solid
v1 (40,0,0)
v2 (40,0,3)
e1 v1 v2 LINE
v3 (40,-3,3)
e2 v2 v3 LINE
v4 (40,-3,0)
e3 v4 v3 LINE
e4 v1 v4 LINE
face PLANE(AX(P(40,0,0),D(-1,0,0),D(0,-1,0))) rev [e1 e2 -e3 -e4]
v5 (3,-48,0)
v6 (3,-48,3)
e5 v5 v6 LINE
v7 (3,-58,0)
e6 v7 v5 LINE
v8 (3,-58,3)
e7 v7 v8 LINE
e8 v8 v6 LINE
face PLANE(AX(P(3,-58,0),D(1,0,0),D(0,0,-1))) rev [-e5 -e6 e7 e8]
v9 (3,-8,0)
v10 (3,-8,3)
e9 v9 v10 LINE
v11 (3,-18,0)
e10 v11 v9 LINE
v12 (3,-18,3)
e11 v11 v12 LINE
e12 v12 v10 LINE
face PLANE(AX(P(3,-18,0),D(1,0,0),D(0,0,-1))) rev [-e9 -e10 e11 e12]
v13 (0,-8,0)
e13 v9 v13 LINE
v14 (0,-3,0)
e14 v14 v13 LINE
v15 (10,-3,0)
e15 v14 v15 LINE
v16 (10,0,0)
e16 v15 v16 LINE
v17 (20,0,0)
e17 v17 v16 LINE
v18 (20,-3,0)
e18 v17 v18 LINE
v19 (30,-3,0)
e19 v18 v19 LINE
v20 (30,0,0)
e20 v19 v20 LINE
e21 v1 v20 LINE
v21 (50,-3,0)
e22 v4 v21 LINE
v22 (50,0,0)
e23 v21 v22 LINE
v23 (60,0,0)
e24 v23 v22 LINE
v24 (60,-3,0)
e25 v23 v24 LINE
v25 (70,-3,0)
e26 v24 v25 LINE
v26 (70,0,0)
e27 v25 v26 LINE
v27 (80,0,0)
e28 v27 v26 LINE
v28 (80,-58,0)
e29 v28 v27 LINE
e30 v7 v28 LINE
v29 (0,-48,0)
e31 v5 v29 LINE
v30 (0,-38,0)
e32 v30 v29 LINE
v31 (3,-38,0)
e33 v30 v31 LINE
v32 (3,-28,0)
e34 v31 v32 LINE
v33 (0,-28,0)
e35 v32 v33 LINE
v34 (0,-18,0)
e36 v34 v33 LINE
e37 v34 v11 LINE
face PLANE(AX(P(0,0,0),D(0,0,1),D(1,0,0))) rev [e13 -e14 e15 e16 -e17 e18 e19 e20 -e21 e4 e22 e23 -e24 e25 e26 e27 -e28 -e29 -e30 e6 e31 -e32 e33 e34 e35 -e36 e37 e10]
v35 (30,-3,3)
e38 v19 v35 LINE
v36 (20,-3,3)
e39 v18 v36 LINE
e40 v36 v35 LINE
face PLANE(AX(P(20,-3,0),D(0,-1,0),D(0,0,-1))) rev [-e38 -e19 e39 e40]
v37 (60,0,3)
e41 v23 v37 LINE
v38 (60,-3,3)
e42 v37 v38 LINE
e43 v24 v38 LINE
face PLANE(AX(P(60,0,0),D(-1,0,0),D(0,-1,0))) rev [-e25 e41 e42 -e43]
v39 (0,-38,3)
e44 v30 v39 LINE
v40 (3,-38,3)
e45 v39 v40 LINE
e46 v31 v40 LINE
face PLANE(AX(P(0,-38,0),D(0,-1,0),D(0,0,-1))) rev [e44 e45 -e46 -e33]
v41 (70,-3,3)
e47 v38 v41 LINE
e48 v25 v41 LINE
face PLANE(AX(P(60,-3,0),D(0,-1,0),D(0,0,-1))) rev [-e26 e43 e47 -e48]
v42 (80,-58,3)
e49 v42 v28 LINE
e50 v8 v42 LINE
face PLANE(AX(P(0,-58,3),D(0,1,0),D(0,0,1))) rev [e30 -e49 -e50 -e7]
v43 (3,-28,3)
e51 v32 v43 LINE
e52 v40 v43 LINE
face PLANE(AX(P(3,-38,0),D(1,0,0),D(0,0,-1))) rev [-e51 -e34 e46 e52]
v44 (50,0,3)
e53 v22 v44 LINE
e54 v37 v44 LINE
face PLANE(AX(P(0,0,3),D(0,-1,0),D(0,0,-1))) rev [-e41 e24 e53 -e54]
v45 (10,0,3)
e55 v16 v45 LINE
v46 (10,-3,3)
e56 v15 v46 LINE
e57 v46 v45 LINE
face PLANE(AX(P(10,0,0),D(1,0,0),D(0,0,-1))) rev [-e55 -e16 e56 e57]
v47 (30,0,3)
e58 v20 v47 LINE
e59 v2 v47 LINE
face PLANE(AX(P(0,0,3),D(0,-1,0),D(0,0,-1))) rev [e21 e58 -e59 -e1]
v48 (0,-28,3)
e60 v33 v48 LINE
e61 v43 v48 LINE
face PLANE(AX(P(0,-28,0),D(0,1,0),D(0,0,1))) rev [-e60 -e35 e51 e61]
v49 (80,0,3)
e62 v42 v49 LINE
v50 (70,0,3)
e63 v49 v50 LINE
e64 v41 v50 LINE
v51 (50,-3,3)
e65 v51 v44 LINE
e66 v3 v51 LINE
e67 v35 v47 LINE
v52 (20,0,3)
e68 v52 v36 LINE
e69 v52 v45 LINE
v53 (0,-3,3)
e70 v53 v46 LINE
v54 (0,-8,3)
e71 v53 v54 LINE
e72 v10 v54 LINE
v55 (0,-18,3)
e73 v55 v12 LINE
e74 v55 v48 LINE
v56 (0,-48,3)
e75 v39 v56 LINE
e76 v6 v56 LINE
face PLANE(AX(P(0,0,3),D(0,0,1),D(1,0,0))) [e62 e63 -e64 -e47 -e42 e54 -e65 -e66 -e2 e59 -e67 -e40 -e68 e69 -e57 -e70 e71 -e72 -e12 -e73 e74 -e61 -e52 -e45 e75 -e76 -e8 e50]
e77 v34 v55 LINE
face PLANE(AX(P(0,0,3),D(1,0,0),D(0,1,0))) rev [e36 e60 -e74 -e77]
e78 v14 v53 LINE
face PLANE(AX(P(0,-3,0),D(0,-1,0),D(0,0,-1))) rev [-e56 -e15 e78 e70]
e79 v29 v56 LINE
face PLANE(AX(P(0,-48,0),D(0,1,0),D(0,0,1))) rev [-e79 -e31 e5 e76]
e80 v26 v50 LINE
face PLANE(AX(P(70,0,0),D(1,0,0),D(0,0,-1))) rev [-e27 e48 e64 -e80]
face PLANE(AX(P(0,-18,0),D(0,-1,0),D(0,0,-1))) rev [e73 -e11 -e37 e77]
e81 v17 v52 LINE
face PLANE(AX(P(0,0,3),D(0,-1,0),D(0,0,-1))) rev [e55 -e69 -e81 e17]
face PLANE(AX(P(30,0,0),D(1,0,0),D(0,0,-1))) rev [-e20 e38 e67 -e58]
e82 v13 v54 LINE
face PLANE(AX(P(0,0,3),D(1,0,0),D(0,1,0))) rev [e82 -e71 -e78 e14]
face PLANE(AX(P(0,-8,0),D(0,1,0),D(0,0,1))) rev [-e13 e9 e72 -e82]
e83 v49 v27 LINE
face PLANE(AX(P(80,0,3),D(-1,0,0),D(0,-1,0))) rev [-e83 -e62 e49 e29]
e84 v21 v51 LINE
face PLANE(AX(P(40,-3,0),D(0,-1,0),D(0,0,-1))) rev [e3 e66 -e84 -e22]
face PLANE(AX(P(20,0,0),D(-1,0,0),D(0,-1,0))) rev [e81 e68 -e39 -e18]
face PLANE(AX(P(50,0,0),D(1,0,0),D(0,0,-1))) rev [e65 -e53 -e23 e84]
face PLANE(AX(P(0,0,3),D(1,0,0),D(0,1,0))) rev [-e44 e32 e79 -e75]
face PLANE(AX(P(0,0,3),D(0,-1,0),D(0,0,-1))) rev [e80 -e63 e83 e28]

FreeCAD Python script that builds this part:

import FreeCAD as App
import Part
import Sketcher
from FreeCAD import Vector
Q = App.Units.Quantity

doc = App.newDocument("Part")
params = doc.addObject("Spreadsheet::Sheet", "Params")
for row, (alias, value) in enumerate([
    ("sketch1_width", "80 mm"),
    ("sketch1_height", "58 mm"),
    ("pad1_length", "3 mm"),
    ("sketch2_width", "10 mm"),
    ("sketch2_height", "3 mm"),
    ("linearpattern_pitch", "20 mm"),
    ("sketch3_width", "3 mm"),
    ("sketch3_height", "10 mm"),
    ("linearpattern2_pitch", "20 mm"),
], start=1):
    params.set(f"A{row}", alias)
    params.set(f"B{row}", "=" + value)
    params.setAlias(f"B{row}", alias)

body = doc.addObject("PartDesign::Body", "Body")

# Sketch on XY plane
sketch1 = body.newObject("Sketcher::SketchObject", "Sketch")
sketch1.AttachmentSupport = (doc.getObject("XY_Plane"), [""])
sketch1.MapMode = "FlatFace"
sketch1.addGeometry([
    Part.LineSegment(Vector(0, 0, 0), Vector(0, -58, 0)),
    Part.LineSegment(Vector(0, -58, 0), Vector(80, -58, 0)),
    Part.LineSegment(Vector(80, -58, 0), Vector(80, 0, 0)),
    Part.LineSegment(Vector(80, 0, 0), Vector(0, 0, 0)),
], False)
sketch1.addConstraint([
    Sketcher.Constraint("Coincident", 0, 2, 1, 1),
    Sketcher.Constraint("Coincident", 1, 2, 2, 1),
    Sketcher.Constraint("Coincident", 2, 2, 3, 1),
    Sketcher.Constraint("Coincident", 3, 2, 0, 1),
    Sketcher.Constraint("Vertical", 0),
    Sketcher.Constraint("Horizontal", 1),
    Sketcher.Constraint("Vertical", 2),
    Sketcher.Constraint("Horizontal", 3),
    Sketcher.Constraint("Coincident", 3, 2, -1, 1),
    Sketcher.Constraint("DistanceX", 1, 1, 1, 2, Q("80 mm")),
    Sketcher.Constraint("DistanceY", 0, 2, 0, 1, Q("58 mm")),
])
sketch1.setExpression("Constraints[9]", "Params.sketch1_width")
sketch1.setExpression("Constraints[10]", "Params.sketch1_height")
pad1 = body.newObject("PartDesign::Pad", "Pad")
pad1.Profile = sketch1
pad1.setExpression("Length", "Params.pad1_length")

# Sketch on XY plane
sketch2 = body.newObject("Sketcher::SketchObject", "Sketch001")
sketch2.AttachmentSupport = (doc.getObject("XY_Plane"), [""])
sketch2.MapMode = "FlatFace"
sketch2.AttachmentOffset = App.Placement(Vector(0, 0, 3), App.Rotation())
sketch2.addGeometry([
    Part.LineSegment(Vector(0, 0, 0), Vector(0, -3, 0)),
    Part.LineSegment(Vector(0, -3, 0), Vector(10, -3, 0)),
    Part.LineSegment(Vector(10, -3, 0), Vector(10, 0, 0)),
    Part.LineSegment(Vector(10, 0, 0), Vector(0, 0, 0)),
], False)
sketch2.addConstraint([
    Sketcher.Constraint("Coincident", 0, 2, 1, 1),
    Sketcher.Constraint("Coincident", 1, 2, 2, 1),
    Sketcher.Constraint("Coincident", 2, 2, 3, 1),
    Sketcher.Constraint("Coincident", 3, 2, 0, 1),
    Sketcher.Constraint("Vertical", 0),
    Sketcher.Constraint("Horizontal", 1),
    Sketcher.Constraint("Vertical", 2),
    Sketcher.Constraint("Horizontal", 3),
    Sketcher.Constraint("Coincident", 3, 2, -1, 1),
    Sketcher.Constraint("DistanceX", 1, 1, 1, 2, Q("10 mm")),
    Sketcher.Constraint("DistanceY", 0, 2, 0, 1, Q("3 mm")),
])
sketch2.setExpression("Constraints[9]", "Params.sketch2_width")
sketch2.setExpression("Constraints[10]", "Params.sketch2_height")
pocket1 = body.newObject("PartDesign::Pocket", "Pocket")
pocket1.Profile = sketch2
pocket1.Type = "ThroughAll"
doc.recompute()

linearpattern = body.newObject("PartDesign::LinearPattern", "LinearPattern")
linearpattern.Originals = [pocket1]
linearpattern.Direction = (doc.getObject("X_Axis"), [""])
linearpattern.Mode = "offset"
linearpattern.setExpression("Offset", "Params.linearpattern_pitch")
linearpattern.Occurrences = 4
body.Tip = linearpattern

# Sketch on XY plane
sketch3 = body.newObject("Sketcher::SketchObject", "Sketch002")
sketch3.AttachmentSupport = (doc.getObject("XY_Plane"), [""])
sketch3.MapMode = "FlatFace"
sketch3.AttachmentOffset = App.Placement(Vector(0, 0, 3), App.Rotation())
sketch3.addGeometry([
    Part.LineSegment(Vector(0, -48, 0), Vector(0, -58, 0)),
    Part.LineSegment(Vector(0, -58, 0), Vector(3, -58, 0)),
    Part.LineSegment(Vector(3, -58, 0), Vector(3, -48, 0)),
    Part.LineSegment(Vector(3, -48, 0), Vector(0, -48, 0)),
], False)
sketch3.addConstraint([
    Sketcher.Constraint("Coincident", 0, 2, 1, 1),
    Sketcher.Constraint("Coincident", 1, 2, 2, 1),
    Sketcher.Constraint("Coincident", 2, 2, 3, 1),
    Sketcher.Constraint("Coincident", 3, 2, 0, 1),
    Sketcher.Constraint("Vertical", 0),
    Sketcher.Constraint("Horizontal", 1),
    Sketcher.Constraint("Vertical", 2),
    Sketcher.Constraint("Horizontal", 3),
    Sketcher.Constraint("PointOnObject", 0, 2, -2),
    Sketcher.Constraint("DistanceX", 1, 1, 1, 2, Q("3 mm")),
    Sketcher.Constraint("DistanceY", 0, 2, 0, 1, Q("10 mm")),
    Sketcher.Constraint("DistanceY", 0, 2, -1, 1, Q("58 mm")),
])
sketch3.setExpression("Constraints[9]", "Params.sketch3_width")
sketch3.setExpression("Constraints[10]", "Params.sketch3_height")
pocket2 = body.newObject("PartDesign::Pocket", "Pocket001")
pocket2.Profile = sketch3
pocket2.Type = "ThroughAll"
doc.recompute()

linearpattern2 = body.newObject("PartDesign::LinearPattern", "LinearPattern001")
linearpattern2.Originals = [pocket2]
linearpattern2.Direction = (doc.getObject("Y_Axis"), [""])
linearpattern2.Mode = "offset"
linearpattern2.setExpression("Offset", "Params.linearpattern2_pitch")
linearpattern2.Occurrences = 3
body.Tip = linearpattern2

doc.recompute()
